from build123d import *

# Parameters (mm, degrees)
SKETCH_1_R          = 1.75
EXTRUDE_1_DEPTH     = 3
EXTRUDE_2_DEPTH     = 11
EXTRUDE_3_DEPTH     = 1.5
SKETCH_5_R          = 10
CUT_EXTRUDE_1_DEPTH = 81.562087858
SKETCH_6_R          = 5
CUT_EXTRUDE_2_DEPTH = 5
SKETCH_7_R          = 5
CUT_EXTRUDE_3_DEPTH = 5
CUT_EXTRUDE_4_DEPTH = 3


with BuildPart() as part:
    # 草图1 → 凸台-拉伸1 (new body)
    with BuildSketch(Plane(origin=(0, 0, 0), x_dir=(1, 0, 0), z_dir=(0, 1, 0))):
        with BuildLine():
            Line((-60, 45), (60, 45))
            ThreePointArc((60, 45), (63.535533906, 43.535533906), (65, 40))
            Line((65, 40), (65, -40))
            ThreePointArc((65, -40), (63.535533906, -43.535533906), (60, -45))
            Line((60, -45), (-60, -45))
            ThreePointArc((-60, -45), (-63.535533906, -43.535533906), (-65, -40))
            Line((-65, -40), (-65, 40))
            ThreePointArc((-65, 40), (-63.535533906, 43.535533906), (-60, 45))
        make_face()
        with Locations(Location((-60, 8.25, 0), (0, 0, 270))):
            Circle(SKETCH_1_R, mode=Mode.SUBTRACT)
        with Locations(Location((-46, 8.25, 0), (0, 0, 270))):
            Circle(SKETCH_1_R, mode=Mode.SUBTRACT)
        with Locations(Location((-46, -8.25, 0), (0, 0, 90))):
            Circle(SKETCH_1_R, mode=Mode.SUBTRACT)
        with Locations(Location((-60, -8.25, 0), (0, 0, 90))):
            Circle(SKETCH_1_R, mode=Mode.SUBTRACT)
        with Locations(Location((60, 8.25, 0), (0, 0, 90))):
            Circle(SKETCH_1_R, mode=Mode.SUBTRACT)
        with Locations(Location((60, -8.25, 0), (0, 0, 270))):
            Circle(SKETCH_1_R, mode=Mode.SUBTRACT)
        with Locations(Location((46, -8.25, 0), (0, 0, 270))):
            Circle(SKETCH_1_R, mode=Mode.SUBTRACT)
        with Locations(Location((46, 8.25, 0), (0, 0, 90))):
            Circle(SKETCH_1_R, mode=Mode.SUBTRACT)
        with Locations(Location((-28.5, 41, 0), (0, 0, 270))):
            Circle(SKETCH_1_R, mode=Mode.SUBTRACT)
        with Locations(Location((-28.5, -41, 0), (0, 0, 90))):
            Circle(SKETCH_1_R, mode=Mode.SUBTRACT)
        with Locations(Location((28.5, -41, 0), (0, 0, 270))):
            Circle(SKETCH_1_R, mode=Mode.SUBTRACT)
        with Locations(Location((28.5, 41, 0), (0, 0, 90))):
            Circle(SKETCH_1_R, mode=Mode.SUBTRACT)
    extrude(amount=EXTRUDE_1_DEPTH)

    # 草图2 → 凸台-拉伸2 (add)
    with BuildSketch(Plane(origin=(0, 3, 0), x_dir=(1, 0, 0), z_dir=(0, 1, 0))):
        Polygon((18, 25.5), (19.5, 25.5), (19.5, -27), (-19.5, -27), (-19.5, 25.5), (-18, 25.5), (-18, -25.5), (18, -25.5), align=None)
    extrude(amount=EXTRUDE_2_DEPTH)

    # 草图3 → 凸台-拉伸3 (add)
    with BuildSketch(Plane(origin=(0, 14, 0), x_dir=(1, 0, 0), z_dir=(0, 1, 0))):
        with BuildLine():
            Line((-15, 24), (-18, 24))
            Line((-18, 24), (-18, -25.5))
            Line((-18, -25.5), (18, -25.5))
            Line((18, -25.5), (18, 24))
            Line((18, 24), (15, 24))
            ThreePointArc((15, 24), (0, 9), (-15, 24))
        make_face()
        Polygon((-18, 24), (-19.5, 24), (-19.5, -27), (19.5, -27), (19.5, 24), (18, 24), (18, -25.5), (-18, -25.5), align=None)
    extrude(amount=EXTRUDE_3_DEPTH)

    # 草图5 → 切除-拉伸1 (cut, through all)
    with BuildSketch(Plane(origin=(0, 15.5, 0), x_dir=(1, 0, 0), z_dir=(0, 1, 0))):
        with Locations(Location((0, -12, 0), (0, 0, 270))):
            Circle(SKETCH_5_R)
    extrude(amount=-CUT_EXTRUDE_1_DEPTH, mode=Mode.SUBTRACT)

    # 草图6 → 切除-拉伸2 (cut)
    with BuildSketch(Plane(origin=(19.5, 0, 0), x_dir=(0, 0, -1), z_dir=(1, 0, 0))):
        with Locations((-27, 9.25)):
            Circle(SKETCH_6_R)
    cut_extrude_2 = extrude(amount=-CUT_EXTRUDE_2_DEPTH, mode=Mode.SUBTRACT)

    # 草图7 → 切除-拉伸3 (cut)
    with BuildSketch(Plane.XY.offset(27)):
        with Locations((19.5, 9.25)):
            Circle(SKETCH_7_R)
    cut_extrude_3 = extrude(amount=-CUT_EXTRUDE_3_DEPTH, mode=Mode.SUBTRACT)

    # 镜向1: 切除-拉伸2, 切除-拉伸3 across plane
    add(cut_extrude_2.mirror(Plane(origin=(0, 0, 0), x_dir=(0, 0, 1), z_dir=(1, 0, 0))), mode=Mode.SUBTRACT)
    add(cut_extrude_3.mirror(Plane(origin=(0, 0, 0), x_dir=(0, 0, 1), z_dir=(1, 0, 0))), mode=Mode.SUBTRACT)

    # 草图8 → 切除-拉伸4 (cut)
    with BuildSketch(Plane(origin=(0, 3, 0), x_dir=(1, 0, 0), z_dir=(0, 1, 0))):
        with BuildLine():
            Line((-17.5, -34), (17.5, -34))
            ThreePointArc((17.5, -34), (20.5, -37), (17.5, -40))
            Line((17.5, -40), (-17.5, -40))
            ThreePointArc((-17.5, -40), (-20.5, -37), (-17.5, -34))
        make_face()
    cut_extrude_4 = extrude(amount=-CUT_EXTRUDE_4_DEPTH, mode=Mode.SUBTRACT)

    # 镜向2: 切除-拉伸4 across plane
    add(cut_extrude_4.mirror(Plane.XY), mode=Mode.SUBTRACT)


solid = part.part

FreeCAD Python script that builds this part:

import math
import FreeCAD as App
import Part
import Sketcher

doc = App.newDocument("Part")
params = doc.addObject("Spreadsheet::Sheet", "Params")
for row, (alias, value) in enumerate([
    ("sketch1_radius", "5 mm"),
    ("sketch1_diameter", "3.5 mm"),
    ("sketch1_width", "120 mm"),
    ("sketch1_height", "80 mm"),
    ("pad1_length", "3 mm"),
    ("sketch2_width", "36 mm"),
    ("sketch2_width2", "39 mm"),
    ("sketch2_height", "51 mm"),
    ("sketch2_height2", "52.5 mm"),
    ("pad2_length", "11 mm"),
    ("sketch3_radius", "15 mm"),
    ("sketch3_width", "39 mm"),
    ("sketch3_height", "51 mm"),
    ("pad3_length", "1.5 mm"),
    ("sketch4_diameter", "20 mm"),
    ("sketch5_diameter", "10 mm"),
    ("pocket2_length", "5 mm"),
    ("sketch6_diameter", "10 mm"),
    ("pocket3_length", "5 mm"),
    ("sketch7_radius", "3 mm"),
    ("sketch7_width", "35 mm"),
    ("pocket4_length", "3 mm"),
], start=1):
    params.set(f"A{row}", alias)
    params.set(f"B{row}", "=" + value)
    params.setAlias(f"B{row}", alias)

body = doc.addObject("PartDesign::Body", "Body")

sketch1 = body.newObject("Sketcher::SketchObject", "Sketch")
sketch1.AttachmentSupport = (doc.getObject("XZ_Plane"), [""])
sketch1.MapMode = "FlatFace"
sketch1.addGeometry([
    Part.LineSegment(App.Vector(60, -45, 0), App.Vector(-60, -45, 0)),
    Part.ArcOfCircle(Part.Circle(App.Vector(-60, -40, 0), App.Vector(0, 0, 1), 5), math.radians(180), math.radians(270)),
    Part.LineSegment(App.Vector(-65, -40, 0), App.Vector(-65, 40, 0)),
    Part.ArcOfCircle(Part.Circle(App.Vector(-60, 40, 0), App.Vector(0, 0, 1), 5), math.radians(90), math.radians(180)),
    Part.LineSegment(App.Vector(-60, 45, 0), App.Vector(60, 45, 0)),
    Part.ArcOfCircle(Part.Circle(App.Vector(60, 40, 0), App.Vector(0, 0, 1), 5), math.radians(0), math.radians(90)),
    Part.LineSegment(App.Vector(65, 40, 0), App.Vector(65, -40, 0)),
    Part.ArcOfCircle(Part.Circle(App.Vector(60, -40, 0), App.Vector(0, 0, 1), 5), math.radians(-90), math.radians(0)),
    Part.Circle(App.Vector(28.5, 41, 0), App.Vector(0, 0, 1), 1.8),
    Part.Circle(App.Vector(60, 8.2, 0), App.Vector(0, 0, 1), 1.8),
    Part.Circle(App.Vector(46, 8.2, 0), App.Vector(0, 0, 1), 1.8),
    Part.Circle(App.Vector(-28.5, 41, 0), App.Vector(0, 0, 1), 1.8),
    Part.Circle(App.Vector(-46, 8.2, 0), App.Vector(0, 0, 1), 1.8),
    Part.Circle(App.Vector(-60, 8.2, 0), App.Vector(0, 0, 1), 1.8),
    Part.Circle(App.Vector(60, -8.2, 0), App.Vector(0, 0, 1), 1.8),
    Part.Circle(App.Vector(46, -8.2, 0), App.Vector(0, 0, 1), 1.8),
    Part.Circle(App.Vector(28.5, -41, 0), App.Vector(0, 0, 1), 1.8),
    Part.Circle(App.Vector(-46, -8.2, 0), App.Vector(0, 0, 1), 1.8),
    Part.Circle(App.Vector(-60, -8.2, 0), App.Vector(0, 0, 1), 1.8),
    Part.Circle(App.Vector(-28.5, -41, 0), App.Vector(0, 0, 1), 1.8),
], False)
sketch1.addConstraint([
    Sketcher.Constraint("Tangent", 0, 2, 1, 2),
    Sketcher.Constraint("Tangent", 1, 1, 2, 1),
    Sketcher.Constraint("Tangent", 2, 2, 3, 2),
    Sketcher.Constraint("Tangent", 3, 1, 4, 1),
    Sketcher.Constraint("Tangent", 4, 2, 5, 2),
    Sketcher.Constraint("Tangent", 5, 1, 6, 1),
    Sketcher.Constraint("Tangent", 6, 2, 7, 2),
    Sketcher.Constraint("Tangent", 7, 1, 0, 1),
    Sketcher.Constraint("Horizontal", 0),
    Sketcher.Constraint("Vertical", 2),
    Sketcher.Constraint("Horizontal", 4),
    Sketcher.Constraint("Vertical", 6),
    Sketcher.Constraint("Equal", 1, 3),
    Sketcher.Constraint("Equal", 3, 5),
    Sketcher.Constraint("Equal", 5, 7),
    Sketcher.Constraint("Equal", 8, 9),
    Sketcher.Constraint("Equal", 9, 10),
    Sketcher.Constraint("Equal", 10, 11),
    Sketcher.Constraint("Equal", 11, 12),
    Sketcher.Constraint("Equal", 12, 13),
    Sketcher.Constraint("Equal", 13, 14),
    Sketcher.Constraint("Equal", 14, 15),
    Sketcher.Constraint("Equal", 15, 16),
    Sketcher.Constraint("Equal", 16, 17),
    Sketcher.Constraint("Equal", 17, 18),
    Sketcher.Constraint("Equal", 18, 19),
    Sketcher.Constraint("Symmetric", 1, 3, 5, 3, -1, 1),
    Sketcher.Constraint("Symmetric", 13, 3, 14, 3, -1, 1),
    Sketcher.Constraint("Symmetric", 12, 3, 15, 3, -1, 1),
    Sketcher.Constraint("Symmetric", 11, 3, 16, 3, -1, 1),
    Sketcher.Constraint("Symmetric", 10, 3, 17, 3, -1, 1),
    Sketcher.Constraint("Symmetric", 9, 3, 18, 3, -1, 1),
    Sketcher.Constraint("Symmetric", 8, 3, 19, 3, -1, 1),
    Sketcher.Constraint("Symmetric", 8, 3, 11, 3, -2),
    Sketcher.Constraint("Symmetric", 10, 3, 12, 3, -2),
    Sketcher.Constraint("Symmetric", 9, 3, 13, 3, -2),
    Sketcher.Constraint("Horizontal", 9, 3, 10, 3),
    Sketcher.Constraint("Vertical", 7, 3, 9, 3),
    Sketcher.Constraint("Radius", 1, 5.0),
    Sketcher.Constraint("Diameter", 8, 3.5),
    Sketcher.Constraint("DistanceX", 0, 2, 0, 1, 120.0),
    Sketcher.Constraint("DistanceY", 2, 1, 2, 2, 80.0),
    Sketcher.Constraint("DistanceY", -1, 1, 8, 3, 41.0),
    Sketcher.Constraint("DistanceX", -1, 1, 10, 3, 46.0),
    Sketcher.Constraint("DistanceX", 11, 3, 8, 3, 57.0),
    Sketcher.Constraint("DistanceY", 14, 3, 9, 3, 16.5),
])
sketch1.setExpression("Constraints[38]", "Params.sketch1_radius")
sketch1.setExpression("Constraints[39]", "Params.sketch1_diameter")
sketch1.setExpression("Constraints[40]", "Params.sketch1_width")
sketch1.setExpression("Constraints[41]", "Params.sketch1_height")
pad1 = body.newObject("PartDesign::Pad", "Pad")
pad1.Profile = sketch1
pad1.setExpression("Length", "Params.pad1_length")
pad1.Reversed = True

sketch2 = body.newObject("Sketcher::SketchObject", "Sketch001")
sketch2.AttachmentSupport = (doc.getObject("XZ_Plane"), [""])
sketch2.MapMode = "FlatFace"
sketch2.AttachmentOffset = App.Placement(App.Vector(0, 0, -3), App.Rotation())
sketch2.addGeometry([
    Part.LineSegment(App.Vector(19.5, -25.5, 0), App.Vector(18, -25.5, 0)),
    Part.LineSegment(App.Vector(18, -25.5, 0), App.Vector(18, 25.5, 0)),
    Part.LineSegment(App.Vector(18, 25.5, 0), App.Vector(-18, 25.5, 0)),
    Part.LineSegment(App.Vector(-18, 25.5, 0), App.Vector(-18, -25.5, 0)),
    Part.LineSegment(App.Vector(-18, -25.5, 0), App.Vector(-19.5, -25.5, 0)),
    Part.LineSegment(App.Vector(-19.5, -25.5, 0), App.Vector(-19.5, 27, 0)),
    Part.LineSegment(App.Vector(-19.5, 27, 0), App.Vector(19.5, 27, 0)),
    Part.LineSegment(App.Vector(19.5, 27, 0), App.Vector(19.5, -25.5, 0)),
], False)
sketch2.addConstraint([
    Sketcher.Constraint("Coincident", 0, 2, 1, 1),
    Sketcher.Constraint("Coincident", 1, 2, 2, 1),
    Sketcher.Constraint("Coincident", 2, 2, 3, 1),
    Sketcher.Constraint("Coincident", 3, 2, 4, 1),
    Sketcher.Constraint("Coincident", 4, 2, 5, 1),
    Sketcher.Constraint("Coincident", 5, 2, 6, 1),
    Sketcher.Constraint("Coincident", 6, 2, 7, 1),
    Sketcher.Constraint("Coincident", 7, 2, 0, 1),
    Sketcher.Constraint("Horizontal", 0),
    Sketcher.Constraint("Vertical", 1),
    Sketcher.Constraint("Horizontal", 2),
    Sketcher.Constraint("Vertical", 3),
    Sketcher.Constraint("Horizontal", 4),
    Sketcher.Constraint("Vertical", 5),
    Sketcher.Constraint("Horizontal", 6),
    Sketcher.Constraint("Vertical", 7),
    Sketcher.Constraint("Symmetric", 0, 2, 2, 2, -1, 1),
    Sketcher.Constraint("Symmetric", 4, 2, 7, 2, -2),
    Sketcher.Constraint("DistanceX", 2, 2, 2, 1, 36.0),
    Sketcher.Constraint("DistanceX", 6, 1, 6, 2, 39.0),
    Sketcher.Constraint("DistanceY", 1, 1, 1, 2, 51.0),
    Sketcher.Constraint("DistanceY", 5, 1, 5, 2, 52.5),
])
sketch2.setExpression("Constraints[18]", "Params.sketch2_width")
sketch2.setExpression("Constraints[19]", "Params.sketch2_width2")
sketch2.setExpression("Constraints[20]", "Params.sketch2_height")
sketch2.setExpression("Constraints[21]", "Params.sketch2_height2")
pad2 = body.newObject("PartDesign::Pad", "Pad001")
pad2.Profile = sketch2
pad2.setExpression("Length", "Params.pad2_length")
pad2.Reversed = True

sketch3 = body.newObject("Sketcher::SketchObject", "Sketch002")
sketch3.AttachmentSupport = (doc.getObject("XZ_Plane"), [""])
sketch3.MapMode = "FlatFace"
sketch3.AttachmentOffset = App.Placement(App.Vector(0, 0, -14), App.Rotation())
sketch3.addGeometry([
    Part.LineSegment(App.Vector(-15, -24, 0), App.Vector(-19.5, -24, 0)),
    Part.LineSegment(App.Vector(-19.5, -24, 0), App.Vector(-19.5, 27, 0)),
    Part.LineSegment(App.Vector(-19.5, 27, 0), App.Vector(19.5, 27, 0)),
    Part.LineSegment(App.Vector(19.5, 27, 0), App.Vector(19.5, -24, 0)),
    Part.LineSegment(App.Vector(19.5, -24, 0), App.Vector(15, -24, 0)),
    Part.ArcOfCircle(Part.Circle(App.Vector(0, -24, 0), App.Vector(0, 0, 1), 15), math.radians(0), math.radians(180)),
], False)
sketch3.addConstraint([
    Sketcher.Constraint("Coincident", 0, 2, 1, 1),
    Sketcher.Constraint("Coincident", 1, 2, 2, 1),
    Sketcher.Constraint("Coincident", 2, 2, 3, 1),
    Sketcher.Constraint("Coincident", 3, 2, 4, 1),
    Sketcher.Constraint("Coincident", 4, 2, 5, 1),
    Sketcher.Constraint("Coincident", 5, 2, 0, 1),
    Sketcher.Constraint("Horizontal", 0),
    Sketcher.Constraint("Vertical", 1),
    Sketcher.Constraint("Horizontal", 2),
    Sketcher.Constraint("Vertical", 3),
    Sketcher.Constraint("Horizontal", 4),
    Sketcher.Constraint("Symmetric", 0, 2, 3, 2, -2),
    Sketcher.Constraint("PointOnObject", 5, 3, -2),
    Sketcher.Constraint("Horizontal", 5, 3, 0, 2),
    Sketcher.Constraint("Radius", 5, 15.0),
    Sketcher.Constraint("DistanceX", 2, 1, 2, 2, 39.0),
    Sketcher.Constraint("DistanceY", 1, 1, 1, 2, 51.0),
    Sketcher.Constraint("DistanceY", 5, 3, -1, 1, 24.0),
])
sketch3.setExpression("Constraints[14]", "Params.sketch3_radius")
sketch3.setExpression("Constraints[15]", "Params.sketch3_width")
sketch3.setExpression("Constraints[16]", "Params.sketch3_height")
pad3 = body.newObject("PartDesign::Pad", "Pad002")
pad3.Profile = sketch3
pad3.setExpression("Length", "Params.pad3_length")
pad3.Reversed = True

sketch4 = body.newObject("Sketcher::SketchObject", "Sketch003")
sketch4.AttachmentSupport = (doc.getObject("XZ_Plane"), [""])
sketch4.MapMode = "FlatFace"
sketch4.AttachmentOffset = App.Placement(App.Vector(0, 0, -15.5), App.Rotation())
sketch4.addGeometry(Part.Circle(App.Vector(0, 12, 0), App.Vector(0, 0, 1), 10), False)
sketch4.addConstraint([
    Sketcher.Constraint("PointOnObject", 0, 3, -2),
    Sketcher.Constraint("Diameter", 0, 20.0),
    Sketcher.Constraint("DistanceY", -1, 1, 0, 3, 12.0),
])
sketch4.setExpression("Constraints[1]", "Params.sketch4_diameter")
pocket1 = body.newObject("PartDesign::Pocket", "Pocket")
pocket1.Profile = sketch4
pocket1.Type = "ThroughAll"
pocket1.Reversed = True

sketch5 = body.newObject("Sketcher::SketchObject", "Sketch004")
sketch5.AttachmentSupport = (doc.getObject("YZ_Plane"), [""])
sketch5.MapMode = "FlatFace"
sketch5.AttachmentOffset = App.Placement(App.Vector(0, 0, 19.5), App.Rotation())
sketch5.addGeometry(Part.Circle(App.Vector(9, 27, 0), App.Vector(0, 0, 1), 5), False)
sketch5.addConstraint([
    Sketcher.Constraint("Diameter", 0, 10.0),
    Sketcher.Constraint("DistanceY", -1, 1, 0, 3, 27.0),
    Sketcher.Constraint("DistanceX", -1, 1, 0, 3, 9.25),
])
sketch5.setExpression("Constraints[0]", "Params.sketch5_diameter")
pocket2 = body.newObject("PartDesign::Pocket", "Pocket001")
pocket2.Profile = sketch5
pocket2.setExpression("Length", "Params.pocket2_length")

sketch6 = body.newObject("Sketcher::SketchObject", "Sketch005")
sketch6.AttachmentSupport = (doc.getObject("XY_Plane"), [""])
sketch6.MapMode = "FlatFace"
sketch6.AttachmentOffset = App.Placement(App.Vector(0, 0, 27), App.Rotation())
sketch6.addGeometry(Part.Circle(App.Vector(20, 9, 0), App.Vector(0, 0, 1), 5), False)
sketch6.addConstraint([
    Sketcher.Constraint("Diameter", 0, 10.0),
    Sketcher.Constraint("DistanceX", -1, 1, 0, 3, 19.5),
    Sketcher.Constraint("DistanceY", -1, 1, 0, 3, 9.25),
])
sketch6.setExpression("Constraints[0]", "Params.sketch6_diameter")
pocket3 = body.newObject("PartDesign::Pocket", "Pocket002")
pocket3.Profile = sketch6
pocket3.setExpression("Length", "Params.pocket3_length")
doc.recompute()

mirrored = body.newObject("PartDesign::Mirrored", "Mirrored")
mirrored.Originals = [pocket2, pocket3]
mirrored.MirrorPlane = (doc.getObject("YZ_Plane"), [""])
body.Tip = mirrored

sketch7 = body.newObject("Sketcher::SketchObject", "Sketch006")
sketch7.AttachmentSupport = (doc.getObject("XZ_Plane"), [""])
sketch7.MapMode = "FlatFace"
sketch7.AttachmentOffset = App.Placement(App.Vector(0, 0, -3), App.Rotation())
sketch7.addGeometry([
    Part.LineSegment(App.Vector(17.5, 34, 0), App.Vector(-17.5, 34, 0)),
    Part.ArcOfCircle(Part.Circle(App.Vector(-17.5, 37, 0), App.Vector(0, 0, 1), 3), math.radians(90), math.radians(270)),
    Part.LineSegment(App.Vector(-17.5, 40, 0), App.Vector(17.5, 40, 0)),
    Part.ArcOfCircle(Part.Circle(App.Vector(17.5, 37, 0), App.Vector(0, 0, 1), 3), math.radians(-90), math.radians(90)),
], False)
sketch7.addConstraint([
    Sketcher.Constraint("Tangent", 0, 2, 1, 2),
    Sketcher.Constraint("Tangent", 1, 1, 2, 1),
    Sketcher.Constraint("Tangent", 2, 2, 3, 2),
    Sketcher.Constraint("Tangent", 3, 1, 0, 1),
    Sketcher.Constraint("Horizontal", 0),
    Sketcher.Constraint("Horizontal", 2),
    Sketcher.Constraint("Radius", 1, 3.0),
    Sketcher.Constraint("DistanceX", 0, 2, 0, 1, 35.0),
    Sketcher.Constraint("DistanceY", -1, 1, 1, 3, 37.0),
    Sketcher.Constraint("DistanceX", 1, 3, -1, 1, 17.5),
])
sketch7.setExpression("Constraints[6]", "Params.sketch7_radius")
sketch7.setExpression("Constraints[7]", "Params.sketch7_width")
pocket4 = body.newObject("PartDesign::Pocket", "Pocket003")
pocket4.Profile = sketch7
pocket4.setExpression("Length", "Params.pocket4_length")
pocket4.Reversed = True
doc.recompute()

mirrored2 = body.newObject("PartDesign::Mirrored", "Mirrored001")
mirrored2.Originals = [pocket4]
mirrored2.MirrorPlane = (doc.getObject("XY_Plane"), [""])
body.Tip = mirrored2

doc.recompute()
